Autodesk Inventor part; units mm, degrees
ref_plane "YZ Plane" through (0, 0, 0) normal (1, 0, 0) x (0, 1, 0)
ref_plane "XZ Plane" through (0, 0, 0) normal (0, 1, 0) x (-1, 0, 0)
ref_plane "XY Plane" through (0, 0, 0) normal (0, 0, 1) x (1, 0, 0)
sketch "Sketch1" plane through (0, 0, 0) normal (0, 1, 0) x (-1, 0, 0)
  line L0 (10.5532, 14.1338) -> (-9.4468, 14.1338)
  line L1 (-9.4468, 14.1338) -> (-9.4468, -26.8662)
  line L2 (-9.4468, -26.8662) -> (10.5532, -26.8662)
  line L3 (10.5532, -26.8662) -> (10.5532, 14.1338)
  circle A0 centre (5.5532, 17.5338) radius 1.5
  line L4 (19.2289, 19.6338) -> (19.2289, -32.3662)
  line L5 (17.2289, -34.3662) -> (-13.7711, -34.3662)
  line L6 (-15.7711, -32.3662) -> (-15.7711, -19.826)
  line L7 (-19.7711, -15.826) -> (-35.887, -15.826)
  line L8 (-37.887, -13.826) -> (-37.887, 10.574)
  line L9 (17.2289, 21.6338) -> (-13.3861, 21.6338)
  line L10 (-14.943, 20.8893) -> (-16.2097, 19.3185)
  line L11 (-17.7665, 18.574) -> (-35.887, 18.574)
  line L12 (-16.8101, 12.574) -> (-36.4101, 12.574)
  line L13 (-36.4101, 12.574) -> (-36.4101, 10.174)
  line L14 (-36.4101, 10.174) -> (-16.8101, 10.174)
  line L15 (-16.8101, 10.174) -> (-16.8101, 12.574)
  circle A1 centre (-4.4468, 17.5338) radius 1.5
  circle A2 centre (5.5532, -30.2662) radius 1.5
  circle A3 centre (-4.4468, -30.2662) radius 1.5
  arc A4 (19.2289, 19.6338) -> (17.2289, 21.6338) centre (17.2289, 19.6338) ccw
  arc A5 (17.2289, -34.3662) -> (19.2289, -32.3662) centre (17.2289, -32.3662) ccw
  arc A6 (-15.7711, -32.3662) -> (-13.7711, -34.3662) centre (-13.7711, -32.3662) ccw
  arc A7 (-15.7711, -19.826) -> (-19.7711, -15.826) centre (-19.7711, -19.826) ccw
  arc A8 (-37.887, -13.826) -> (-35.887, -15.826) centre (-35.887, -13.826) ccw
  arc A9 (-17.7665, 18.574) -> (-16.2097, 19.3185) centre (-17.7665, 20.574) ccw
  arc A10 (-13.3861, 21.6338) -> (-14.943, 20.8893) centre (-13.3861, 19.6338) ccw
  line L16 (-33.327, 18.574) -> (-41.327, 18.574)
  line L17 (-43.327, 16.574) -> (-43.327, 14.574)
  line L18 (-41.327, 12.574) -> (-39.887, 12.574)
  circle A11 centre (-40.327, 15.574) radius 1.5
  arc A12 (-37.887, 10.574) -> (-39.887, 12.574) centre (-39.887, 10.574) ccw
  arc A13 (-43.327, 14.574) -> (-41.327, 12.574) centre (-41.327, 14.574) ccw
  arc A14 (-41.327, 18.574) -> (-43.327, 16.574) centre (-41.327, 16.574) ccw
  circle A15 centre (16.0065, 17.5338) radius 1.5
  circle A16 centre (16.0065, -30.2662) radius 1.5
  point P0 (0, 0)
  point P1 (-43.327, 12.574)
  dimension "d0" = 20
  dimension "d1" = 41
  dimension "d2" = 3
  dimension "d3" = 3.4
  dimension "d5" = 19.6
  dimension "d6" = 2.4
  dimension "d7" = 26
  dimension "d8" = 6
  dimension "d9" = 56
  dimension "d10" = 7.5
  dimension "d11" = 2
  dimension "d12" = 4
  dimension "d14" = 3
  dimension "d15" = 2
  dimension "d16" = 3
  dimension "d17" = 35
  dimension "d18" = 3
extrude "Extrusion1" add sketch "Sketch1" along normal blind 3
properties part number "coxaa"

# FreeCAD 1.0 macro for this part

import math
import FreeCAD as App
import Part
import Sketcher

V = App.Vector

doc = App.newDocument("Part")
body = doc.addObject("PartDesign::Body", "Body")

sketch1 = body.newObject("Sketcher::SketchObject", "Sketch")
sketch1.AttachmentSupport = (doc.getObject("XZ_Plane"), [""])
sketch1.MapMode = "FlatFace"
sketch1.addGeometry(Part.LineSegment(V(-19.2289, -32.3662, 0), V(-19.2289, 19.6338, 0)), False)
sketch1.addGeometry(Part.ArcOfCircle(Part.Circle(V(-17.2289, 19.6338, 0), V(0, 0, 1), 2), math.radians(90), math.radians(180)), False)
sketch1.addGeometry(Part.LineSegment(V(-17.2289, 21.6338, 0), V(13.3861, 21.6338, 0)), False)
sketch1.addGeometry(Part.ArcOfCircle(Part.Circle(V(13.3861, 19.6338, 0), V(0, 0, 1), 2), math.radians(38.883058), math.radians(90)), False)
sketch1.addGeometry(Part.LineSegment(V(14.943, 20.8893, 0), V(16.2097, 19.3185, 0)), False)
sketch1.addGeometry(Part.ArcOfCircle(Part.Circle(V(17.7665, 20.574, 0), V(0, 0, 1), 2), math.radians(-141.115144), math.radians(-90)), False)
sketch1.addGeometry(Part.LineSegment(V(17.7665, 18.574, 0), V(41.327, 18.574, 0)), False)
sketch1.addGeometry(Part.ArcOfCircle(Part.Circle(V(41.327, 16.574, 0), V(0, 0, 1), 2), math.radians(0), math.radians(90)), False)
sketch1.addGeometry(Part.LineSegment(V(43.327, 16.574, 0), V(43.327, 14.574, 0)), False)
sketch1.addGeometry(Part.ArcOfCircle(Part.Circle(V(41.327, 14.574, 0), V(0, 0, 1), 2), math.radians(-90), math.radians(0)), False)
sketch1.addGeometry(Part.LineSegment(V(41.327, 12.574, 0), V(39.887, 12.574, 0)), False)
sketch1.addGeometry(Part.ArcOfCircle(Part.Circle(V(39.887, 10.574, 0), V(0, 0, 1), 2), math.radians(90), math.radians(180)), False)
sketch1.addGeometry(Part.LineSegment(V(37.887, 10.574, 0), V(37.887, -13.826, 0)), False)
sketch1.addGeometry(Part.ArcOfCircle(Part.Circle(V(35.887, -13.826, 0), V(0, 0, 1), 2), math.radians(-90), math.radians(0)), False)
sketch1.addGeometry(Part.LineSegment(V(35.887, -15.826, 0), V(19.7711, -15.826, 0)), False)
sketch1.addGeometry(Part.ArcOfCircle(Part.Circle(V(19.7711, -19.826, 0), V(0, 0, 1), 4), math.radians(90), math.radians(180)), False)
sketch1.addGeometry(Part.LineSegment(V(15.7711, -19.826, 0), V(15.7711, -32.3662, 0)), False)
sketch1.addGeometry(Part.ArcOfCircle(Part.Circle(V(13.7711, -32.3662, 0), V(0, 0, 1), 2), math.radians(-90), math.radians(0)), False)
sketch1.addGeometry(Part.LineSegment(V(13.7711, -34.3662, 0), V(-17.2289, -34.3662, 0)), False)
sketch1.addGeometry(Part.ArcOfCircle(Part.Circle(V(-17.2289, -32.3662, 0), V(0, 0, 1), 2), math.radians(180), math.radians(270)), False)
sketch1.addGeometry(Part.Circle(V(4.4468, -30.2662, 0), V(0, 0, 1), 1.5), False)
sketch1.addGeometry(Part.Circle(V(-5.5532, -30.2662, 0), V(0, 0, 1), 1.5), False)
sketch1.addGeometry(Part.Circle(V(-16.0065, -30.2662, 0), V(0, 0, 1), 1.5), False)
sketch1.addGeometry(Part.Circle(V(40.327, 15.574, 0), V(0, 0, 1), 1.5), False)
sketch1.addGeometry(Part.LineSegment(V(36.4101, 12.574, 0), V(16.8101, 12.574, 0)), False)
sketch1.addGeometry(Part.LineSegment(V(16.8101, 12.574, 0), V(16.8101, 10.174, 0)), False)
sketch1.addGeometry(Part.LineSegment(V(16.8101, 10.174, 0), V(36.4101, 10.174, 0)), False)
sketch1.addGeometry(Part.LineSegment(V(36.4101, 10.174, 0), V(36.4101, 12.574, 0)), False)
sketch1.addGeometry(Part.LineSegment(V(9.4468, 14.1338, 0), V(-10.5532, 14.1338, 0)), False)
sketch1.addGeometry(Part.LineSegment(V(-10.5532, 14.1338, 0), V(-10.5532, -26.8662, 0)), False)
sketch1.addGeometry(Part.LineSegment(V(-10.5532, -26.8662, 0), V(9.4468, -26.8662, 0)), False)
sketch1.addGeometry(Part.LineSegment(V(9.4468, -26.8662, 0), V(9.4468, 14.1338, 0)), False)
sketch1.addGeometry(Part.Circle(V(4.4468, 17.5338, 0), V(0, 0, 1), 1.5), False)
sketch1.addGeometry(Part.Circle(V(-5.5532, 17.5338, 0), V(0, 0, 1), 1.5), False)
sketch1.addGeometry(Part.Circle(V(-16.0065, 17.5338, 0), V(0, 0, 1), 1.5), False)
sketch1.addConstraint(Sketcher.Constraint("Tangent", 0, 2, 1, 2))
sketch1.addConstraint(Sketcher.Constraint("Tangent", 1, 1, 2, 1))
sketch1.addConstraint(Sketcher.Constraint("Tangent", 2, 2, 3, 2))
sketch1.addConstraint(Sketcher.Constraint("Tangent", 3, 1, 4, 1))
sketch1.addConstraint(Sketcher.Constraint("Tangent", 4, 2, 5, 1))
sketch1.addConstraint(Sketcher.Constraint("Tangent", 5, 2, 6, 1))
sketch1.addConstraint(Sketcher.Constraint("Tangent", 6, 2, 7, 2))
sketch1.addConstraint(Sketcher.Constraint("Tangent", 7, 1, 8, 1))
sketch1.addConstraint(Sketcher.Constraint("Tangent", 8, 2, 9, 2))
sketch1.addConstraint(Sketcher.Constraint("Tangent", 9, 1, 10, 1))
sketch1.addConstraint(Sketcher.Constraint("Tangent", 10, 2, 11, 1))
sketch1.addConstraint(Sketcher.Constraint("Tangent", 11, 2, 12, 1))
sketch1.addConstraint(Sketcher.Constraint("Tangent", 12, 2, 13, 2))
sketch1.addConstraint(Sketcher.Constraint("Tangent", 13, 1, 14, 1))
sketch1.addConstraint(Sketcher.Constraint("Tangent", 14, 2, 15, 1))
sketch1.addConstraint(Sketcher.Constraint("Tangent", 15, 2, 16, 1))
sketch1.addConstraint(Sketcher.Constraint("Tangent", 16, 2, 17, 2))
sketch1.addConstraint(Sketcher.Constraint("Tangent", 17, 1, 18, 1))
sketch1.addConstraint(Sketcher.Constraint("Tangent", 18, 2, 19, 2))
sketch1.addConstraint(Sketcher.Constraint("Tangent", 19, 1, 0, 1))
sketch1.addConstraint(Sketcher.Constraint("Coincident", 24, 2, 25, 1))
sketch1.addConstraint(Sketcher.Constraint("Coincident", 25, 2, 26, 1))
sketch1.addConstraint(Sketcher.Constraint("Coincident", 26, 2, 27, 1))
sketch1.addConstraint(Sketcher.Constraint("Coincident", 27, 2, 24, 1))
sketch1.addConstraint(Sketcher.Constraint("Coincident", 28, 2, 29, 1))
sketch1.addConstraint(Sketcher.Constraint("Coincident", 29, 2, 30, 1))
sketch1.addConstraint(Sketcher.Constraint("Coincident", 30, 2, 31, 1))
sketch1.addConstraint(Sketcher.Constraint("Coincident", 31, 2, 28, 1))
sketch1.addConstraint(Sketcher.Constraint("Vertical", 0))
sketch1.addConstraint(Sketcher.Constraint("Horizontal", 2))
sketch1.addConstraint(Sketcher.Constraint("Horizontal", 6))
sketch1.addConstraint(Sketcher.Constraint("Vertical", 8))
sketch1.addConstraint(Sketcher.Constraint("Horizontal", 10))
sketch1.addConstraint(Sketcher.Constraint("Vertical", 12))
sketch1.addConstraint(Sketcher.Constraint("Horizontal", 14))
sketch1.addConstraint(Sketcher.Constraint("Vertical", 16))
sketch1.addConstraint(Sketcher.Constraint("Horizontal", 18))
sketch1.addConstraint(Sketcher.Constraint("Horizontal", 24))
sketch1.addConstraint(Sketcher.Constraint("Vertical", 25))
sketch1.addConstraint(Sketcher.Constraint("Horizontal", 26))
sketch1.addConstraint(Sketcher.Constraint("Vertical", 27))
sketch1.addConstraint(Sketcher.Constraint("Horizontal", 28))
sketch1.addConstraint(Sketcher.Constraint("Vertical", 29))
sketch1.addConstraint(Sketcher.Constraint("Horizontal", 30))
sketch1.addConstraint(Sketcher.Constraint("Vertical", 31))
sketch1.addConstraint(Sketcher.Constraint("Equal", 1, 3))
sketch1.addConstraint(Sketcher.Constraint("Equal", 3, 5))
sketch1.addConstraint(Sketcher.Constraint("Equal", 5, 7))
sketch1.addConstraint(Sketcher.Constraint("Equal", 7, 9))
sketch1.addConstraint(Sketcher.Constraint("Equal", 9, 11))
sketch1.addConstraint(Sketcher.Constraint("Equal", 11, 13))
sketch1.addConstraint(Sketcher.Constraint("Equal", 13, 17))
sketch1.addConstraint(Sketcher.Constraint("Equal", 17, 19))
sketch1.addConstraint(Sketcher.Constraint("Equal", 20, 21))
sketch1.addConstraint(Sketcher.Constraint("Equal", 21, 22))
sketch1.addConstraint(Sketcher.Constraint("Equal", 22, 23))
sketch1.addConstraint(Sketcher.Constraint("Equal", 23, 32))
sketch1.addConstraint(Sketcher.Constraint("Equal", 32, 33))
sketch1.addConstraint(Sketcher.Constraint("Equal", 33, 34))
sketch1.addConstraint(Sketcher.Constraint("Horizontal", 20, 3, 21, 3))
sketch1.addConstraint(Sketcher.Constraint("Horizontal", 21, 3, 22, 3))
sketch1.addConstraint(Sketcher.Constraint("Horizontal", 32, 3, 33, 3))
sketch1.addConstraint(Sketcher.Constraint("Horizontal", 33, 3, 34, 3))
sketch1.addConstraint(Sketcher.Constraint("Horizontal", 10, 2, 24, 2))
sketch1.addConstraint(Sketcher.Constraint("Vertical", 20, 3, 32, 3))
sketch1.addConstraint(Sketcher.Constraint("Vertical", 21, 3, 33, 3))
sketch1.addConstraint(Sketcher.Constraint("Vertical", 22, 3, 34, 3))
sketch1.addConstraint(Sketcher.Constraint("Diameter", 20, 3.0))
sketch1.addConstraint(Sketcher.Constraint("Radius", 1, 2.0))
sketch1.addConstraint(Sketcher.Constraint("Radius", 15, 4.0))
sketch1.addConstraint(Sketcher.Constraint("DistanceX", 28, 2, 28, 1, 20.0))
sketch1.addConstraint(Sketcher.Constraint("DistanceY", 8, 2, 8, 1, 2.0))
sketch1.addConstraint(Sketcher.Constraint("DistanceY", 29, 2, 29, 1, 41.0))
sketch1.addConstraint(Sketcher.Constraint("DistanceX", 24, 2, 24, 1, 19.6))
sketch1.addConstraint(Sketcher.Constraint("DistanceY", 25, 2, 25, 1, 2.4))
sketch1.addConstraint(Sketcher.Constraint("DistanceY", 23, 3, 6, 2, 3.0))
sketch1.addConstraint(Sketcher.Constraint("DistanceX", 23, 3, 7, 1, 3.0))
sketch1.addConstraint(Sketcher.Constraint("DistanceY", 28, 2, 33, 3, 3.4))
sketch1.addConstraint(Sketcher.Constraint("DistanceY", 28, 2, 1, 1, 7.5))
sketch1.addConstraint(Sketcher.Constraint("DistanceY", 21, 3, 29, 2, 3.4))
sketch1.addConstraint(Sketcher.Constraint("DistanceY", 18, 2, 29, 2, 7.5))
sketch1.addConstraint(Sketcher.Constraint("DistanceX", 18, 2, 18, 1, 31.0))
sketch1.addConstraint(Sketcher.Constraint("DistanceY", 12, 2, 12, 1, 24.4))
sketch1.addConstraint(Sketcher.Constraint("DistanceX", 21, 3, 20, 3, 10.0))
sketch1.addConstraint(Sketcher.Constraint("DistanceX", 28, 2, 33, 3, 5.0))
sketch1.addConstraint(Sketcher.Constraint("DistanceX", 10, 2, 10, 1, 1.44))
sketch1.addConstraint(Sketcher.Constraint("DistanceX", 2, 1, 2, 2, 30.615))
sketch1.addConstraint(Sketcher.Constraint("DistanceX", 14, 2, 14, 1, 16.116))
sketch1.addConstraint(Sketcher.Constraint("DistanceX", -1, 1, 24, 2, 16.81))
sketch1.addConstraint(Sketcher.Constraint("Distance", 4, 2.018))
sketch1.addConstraint(Sketcher.Constraint("DistanceX", 6, 1, 6, 2, 23.5605))
sketch1.addConstraint(Sketcher.Constraint("DistanceX", 1, 3, -1, 1, 17.229))
sketch1.addConstraint(Sketcher.Constraint("DistanceY", -1, 1, 5, 3, 20.574))
sketch1.addConstraint(Sketcher.Constraint("DistanceX", 34, 3, 5, 3, 33.773))
sketch1.addConstraint(Sketcher.Constraint("DistanceX", 32, 3, 4, 2, 11.763))
pad1 = body.newObject("PartDesign::Pad", "Pad")
pad1.Profile = sketch1
pad1.Length = 3
pad1.Reversed = True

doc.recompute()
